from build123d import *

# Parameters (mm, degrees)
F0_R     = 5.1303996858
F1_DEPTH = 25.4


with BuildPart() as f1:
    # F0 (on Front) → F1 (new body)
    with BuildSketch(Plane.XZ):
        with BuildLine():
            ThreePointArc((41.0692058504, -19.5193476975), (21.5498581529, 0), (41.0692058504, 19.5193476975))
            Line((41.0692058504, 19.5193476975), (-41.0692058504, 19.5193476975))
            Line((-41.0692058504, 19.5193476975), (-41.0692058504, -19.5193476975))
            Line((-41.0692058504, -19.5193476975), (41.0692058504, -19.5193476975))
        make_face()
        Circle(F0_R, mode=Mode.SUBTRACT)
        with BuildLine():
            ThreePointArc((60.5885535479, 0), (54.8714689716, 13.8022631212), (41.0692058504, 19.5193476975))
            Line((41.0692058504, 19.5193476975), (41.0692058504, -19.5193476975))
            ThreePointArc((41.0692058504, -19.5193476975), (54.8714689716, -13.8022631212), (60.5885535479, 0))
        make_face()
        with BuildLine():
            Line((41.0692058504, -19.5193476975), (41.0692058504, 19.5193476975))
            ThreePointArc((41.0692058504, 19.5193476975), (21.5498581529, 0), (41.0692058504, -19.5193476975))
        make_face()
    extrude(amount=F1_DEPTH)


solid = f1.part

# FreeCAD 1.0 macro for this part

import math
import FreeCAD as App
import Part
import Sketcher

V = App.Vector
Q = App.Units.Quantity

doc = App.newDocument("Part")
body = doc.addObject("PartDesign::Body", "Body")

sketch1 = body.newObject("Sketcher::SketchObject", "Sketch")
sketch1.AttachmentSupport = (doc.getObject("XZ_Plane"), [""])
sketch1.MapMode = "FlatFace"
sketch1.addGeometry(Part.LineSegment(V(-41, -20, 0), V(41, -20, 0)), False)
sketch1.addGeometry(Part.ArcOfCircle(Part.Circle(V(41, 0, 0), V(0, 0, 1), 20), math.radians(-90), math.radians(0)), False)
sketch1.addGeometry(Part.ArcOfCircle(Part.Circle(V(41, 0, 0), V(0, 0, 1), 20), math.radians(0), math.radians(90)), False)
sketch1.addGeometry(Part.LineSegment(V(41, 20, 0), V(-41, 20, 0)), False)
sketch1.addGeometry(Part.LineSegment(V(-41, 20, 0), V(-41, -20, 0)), False)
sketch1.addGeometry(Part.Circle(V(0, 0, 0), V(0, 0, 1), 5), False)
sketch1.addConstraint(Sketcher.Constraint("Tangent", 0, 2, 1, 1))
sketch1.addConstraint(Sketcher.Constraint("Tangent", 1, 2, 2, 1))
sketch1.addConstraint(Sketcher.Constraint("Tangent", 2, 2, 3, 1))
sketch1.addConstraint(Sketcher.Constraint("Coincident", 3, 2, 4, 1))
sketch1.addConstraint(Sketcher.Constraint("Coincident", 4, 2, 0, 1))
sketch1.addConstraint(Sketcher.Constraint("Horizontal", 0))
sketch1.addConstraint(Sketcher.Constraint("Horizontal", 3))
sketch1.addConstraint(Sketcher.Constraint("Vertical", 4))
sketch1.addConstraint(Sketcher.Constraint("Coincident", 5, 3, -1, 1))
sketch1.addConstraint(Sketcher.Constraint("Equal", 1, 2))
sketch1.addConstraint(Sketcher.Constraint("Symmetric", 0, 2, 3, 2, -1, 1))
sketch1.addConstraint(Sketcher.Constraint("PointOnObject", 1, 2, -1))
sketch1.addConstraint(Sketcher.Constraint("Diameter", 5, 10.260799))
sketch1.addConstraint(Sketcher.Constraint("Radius", 1, 19.519348))
sketch1.addConstraint(Sketcher.Constraint("DistanceX", 0, 1, 0, 2, 82.138412))
pad1 = body.newObject("PartDesign::Pad", "Pad")
pad1.Profile = sketch1
pad1.Length = Q("1 in")

doc.recompute()
